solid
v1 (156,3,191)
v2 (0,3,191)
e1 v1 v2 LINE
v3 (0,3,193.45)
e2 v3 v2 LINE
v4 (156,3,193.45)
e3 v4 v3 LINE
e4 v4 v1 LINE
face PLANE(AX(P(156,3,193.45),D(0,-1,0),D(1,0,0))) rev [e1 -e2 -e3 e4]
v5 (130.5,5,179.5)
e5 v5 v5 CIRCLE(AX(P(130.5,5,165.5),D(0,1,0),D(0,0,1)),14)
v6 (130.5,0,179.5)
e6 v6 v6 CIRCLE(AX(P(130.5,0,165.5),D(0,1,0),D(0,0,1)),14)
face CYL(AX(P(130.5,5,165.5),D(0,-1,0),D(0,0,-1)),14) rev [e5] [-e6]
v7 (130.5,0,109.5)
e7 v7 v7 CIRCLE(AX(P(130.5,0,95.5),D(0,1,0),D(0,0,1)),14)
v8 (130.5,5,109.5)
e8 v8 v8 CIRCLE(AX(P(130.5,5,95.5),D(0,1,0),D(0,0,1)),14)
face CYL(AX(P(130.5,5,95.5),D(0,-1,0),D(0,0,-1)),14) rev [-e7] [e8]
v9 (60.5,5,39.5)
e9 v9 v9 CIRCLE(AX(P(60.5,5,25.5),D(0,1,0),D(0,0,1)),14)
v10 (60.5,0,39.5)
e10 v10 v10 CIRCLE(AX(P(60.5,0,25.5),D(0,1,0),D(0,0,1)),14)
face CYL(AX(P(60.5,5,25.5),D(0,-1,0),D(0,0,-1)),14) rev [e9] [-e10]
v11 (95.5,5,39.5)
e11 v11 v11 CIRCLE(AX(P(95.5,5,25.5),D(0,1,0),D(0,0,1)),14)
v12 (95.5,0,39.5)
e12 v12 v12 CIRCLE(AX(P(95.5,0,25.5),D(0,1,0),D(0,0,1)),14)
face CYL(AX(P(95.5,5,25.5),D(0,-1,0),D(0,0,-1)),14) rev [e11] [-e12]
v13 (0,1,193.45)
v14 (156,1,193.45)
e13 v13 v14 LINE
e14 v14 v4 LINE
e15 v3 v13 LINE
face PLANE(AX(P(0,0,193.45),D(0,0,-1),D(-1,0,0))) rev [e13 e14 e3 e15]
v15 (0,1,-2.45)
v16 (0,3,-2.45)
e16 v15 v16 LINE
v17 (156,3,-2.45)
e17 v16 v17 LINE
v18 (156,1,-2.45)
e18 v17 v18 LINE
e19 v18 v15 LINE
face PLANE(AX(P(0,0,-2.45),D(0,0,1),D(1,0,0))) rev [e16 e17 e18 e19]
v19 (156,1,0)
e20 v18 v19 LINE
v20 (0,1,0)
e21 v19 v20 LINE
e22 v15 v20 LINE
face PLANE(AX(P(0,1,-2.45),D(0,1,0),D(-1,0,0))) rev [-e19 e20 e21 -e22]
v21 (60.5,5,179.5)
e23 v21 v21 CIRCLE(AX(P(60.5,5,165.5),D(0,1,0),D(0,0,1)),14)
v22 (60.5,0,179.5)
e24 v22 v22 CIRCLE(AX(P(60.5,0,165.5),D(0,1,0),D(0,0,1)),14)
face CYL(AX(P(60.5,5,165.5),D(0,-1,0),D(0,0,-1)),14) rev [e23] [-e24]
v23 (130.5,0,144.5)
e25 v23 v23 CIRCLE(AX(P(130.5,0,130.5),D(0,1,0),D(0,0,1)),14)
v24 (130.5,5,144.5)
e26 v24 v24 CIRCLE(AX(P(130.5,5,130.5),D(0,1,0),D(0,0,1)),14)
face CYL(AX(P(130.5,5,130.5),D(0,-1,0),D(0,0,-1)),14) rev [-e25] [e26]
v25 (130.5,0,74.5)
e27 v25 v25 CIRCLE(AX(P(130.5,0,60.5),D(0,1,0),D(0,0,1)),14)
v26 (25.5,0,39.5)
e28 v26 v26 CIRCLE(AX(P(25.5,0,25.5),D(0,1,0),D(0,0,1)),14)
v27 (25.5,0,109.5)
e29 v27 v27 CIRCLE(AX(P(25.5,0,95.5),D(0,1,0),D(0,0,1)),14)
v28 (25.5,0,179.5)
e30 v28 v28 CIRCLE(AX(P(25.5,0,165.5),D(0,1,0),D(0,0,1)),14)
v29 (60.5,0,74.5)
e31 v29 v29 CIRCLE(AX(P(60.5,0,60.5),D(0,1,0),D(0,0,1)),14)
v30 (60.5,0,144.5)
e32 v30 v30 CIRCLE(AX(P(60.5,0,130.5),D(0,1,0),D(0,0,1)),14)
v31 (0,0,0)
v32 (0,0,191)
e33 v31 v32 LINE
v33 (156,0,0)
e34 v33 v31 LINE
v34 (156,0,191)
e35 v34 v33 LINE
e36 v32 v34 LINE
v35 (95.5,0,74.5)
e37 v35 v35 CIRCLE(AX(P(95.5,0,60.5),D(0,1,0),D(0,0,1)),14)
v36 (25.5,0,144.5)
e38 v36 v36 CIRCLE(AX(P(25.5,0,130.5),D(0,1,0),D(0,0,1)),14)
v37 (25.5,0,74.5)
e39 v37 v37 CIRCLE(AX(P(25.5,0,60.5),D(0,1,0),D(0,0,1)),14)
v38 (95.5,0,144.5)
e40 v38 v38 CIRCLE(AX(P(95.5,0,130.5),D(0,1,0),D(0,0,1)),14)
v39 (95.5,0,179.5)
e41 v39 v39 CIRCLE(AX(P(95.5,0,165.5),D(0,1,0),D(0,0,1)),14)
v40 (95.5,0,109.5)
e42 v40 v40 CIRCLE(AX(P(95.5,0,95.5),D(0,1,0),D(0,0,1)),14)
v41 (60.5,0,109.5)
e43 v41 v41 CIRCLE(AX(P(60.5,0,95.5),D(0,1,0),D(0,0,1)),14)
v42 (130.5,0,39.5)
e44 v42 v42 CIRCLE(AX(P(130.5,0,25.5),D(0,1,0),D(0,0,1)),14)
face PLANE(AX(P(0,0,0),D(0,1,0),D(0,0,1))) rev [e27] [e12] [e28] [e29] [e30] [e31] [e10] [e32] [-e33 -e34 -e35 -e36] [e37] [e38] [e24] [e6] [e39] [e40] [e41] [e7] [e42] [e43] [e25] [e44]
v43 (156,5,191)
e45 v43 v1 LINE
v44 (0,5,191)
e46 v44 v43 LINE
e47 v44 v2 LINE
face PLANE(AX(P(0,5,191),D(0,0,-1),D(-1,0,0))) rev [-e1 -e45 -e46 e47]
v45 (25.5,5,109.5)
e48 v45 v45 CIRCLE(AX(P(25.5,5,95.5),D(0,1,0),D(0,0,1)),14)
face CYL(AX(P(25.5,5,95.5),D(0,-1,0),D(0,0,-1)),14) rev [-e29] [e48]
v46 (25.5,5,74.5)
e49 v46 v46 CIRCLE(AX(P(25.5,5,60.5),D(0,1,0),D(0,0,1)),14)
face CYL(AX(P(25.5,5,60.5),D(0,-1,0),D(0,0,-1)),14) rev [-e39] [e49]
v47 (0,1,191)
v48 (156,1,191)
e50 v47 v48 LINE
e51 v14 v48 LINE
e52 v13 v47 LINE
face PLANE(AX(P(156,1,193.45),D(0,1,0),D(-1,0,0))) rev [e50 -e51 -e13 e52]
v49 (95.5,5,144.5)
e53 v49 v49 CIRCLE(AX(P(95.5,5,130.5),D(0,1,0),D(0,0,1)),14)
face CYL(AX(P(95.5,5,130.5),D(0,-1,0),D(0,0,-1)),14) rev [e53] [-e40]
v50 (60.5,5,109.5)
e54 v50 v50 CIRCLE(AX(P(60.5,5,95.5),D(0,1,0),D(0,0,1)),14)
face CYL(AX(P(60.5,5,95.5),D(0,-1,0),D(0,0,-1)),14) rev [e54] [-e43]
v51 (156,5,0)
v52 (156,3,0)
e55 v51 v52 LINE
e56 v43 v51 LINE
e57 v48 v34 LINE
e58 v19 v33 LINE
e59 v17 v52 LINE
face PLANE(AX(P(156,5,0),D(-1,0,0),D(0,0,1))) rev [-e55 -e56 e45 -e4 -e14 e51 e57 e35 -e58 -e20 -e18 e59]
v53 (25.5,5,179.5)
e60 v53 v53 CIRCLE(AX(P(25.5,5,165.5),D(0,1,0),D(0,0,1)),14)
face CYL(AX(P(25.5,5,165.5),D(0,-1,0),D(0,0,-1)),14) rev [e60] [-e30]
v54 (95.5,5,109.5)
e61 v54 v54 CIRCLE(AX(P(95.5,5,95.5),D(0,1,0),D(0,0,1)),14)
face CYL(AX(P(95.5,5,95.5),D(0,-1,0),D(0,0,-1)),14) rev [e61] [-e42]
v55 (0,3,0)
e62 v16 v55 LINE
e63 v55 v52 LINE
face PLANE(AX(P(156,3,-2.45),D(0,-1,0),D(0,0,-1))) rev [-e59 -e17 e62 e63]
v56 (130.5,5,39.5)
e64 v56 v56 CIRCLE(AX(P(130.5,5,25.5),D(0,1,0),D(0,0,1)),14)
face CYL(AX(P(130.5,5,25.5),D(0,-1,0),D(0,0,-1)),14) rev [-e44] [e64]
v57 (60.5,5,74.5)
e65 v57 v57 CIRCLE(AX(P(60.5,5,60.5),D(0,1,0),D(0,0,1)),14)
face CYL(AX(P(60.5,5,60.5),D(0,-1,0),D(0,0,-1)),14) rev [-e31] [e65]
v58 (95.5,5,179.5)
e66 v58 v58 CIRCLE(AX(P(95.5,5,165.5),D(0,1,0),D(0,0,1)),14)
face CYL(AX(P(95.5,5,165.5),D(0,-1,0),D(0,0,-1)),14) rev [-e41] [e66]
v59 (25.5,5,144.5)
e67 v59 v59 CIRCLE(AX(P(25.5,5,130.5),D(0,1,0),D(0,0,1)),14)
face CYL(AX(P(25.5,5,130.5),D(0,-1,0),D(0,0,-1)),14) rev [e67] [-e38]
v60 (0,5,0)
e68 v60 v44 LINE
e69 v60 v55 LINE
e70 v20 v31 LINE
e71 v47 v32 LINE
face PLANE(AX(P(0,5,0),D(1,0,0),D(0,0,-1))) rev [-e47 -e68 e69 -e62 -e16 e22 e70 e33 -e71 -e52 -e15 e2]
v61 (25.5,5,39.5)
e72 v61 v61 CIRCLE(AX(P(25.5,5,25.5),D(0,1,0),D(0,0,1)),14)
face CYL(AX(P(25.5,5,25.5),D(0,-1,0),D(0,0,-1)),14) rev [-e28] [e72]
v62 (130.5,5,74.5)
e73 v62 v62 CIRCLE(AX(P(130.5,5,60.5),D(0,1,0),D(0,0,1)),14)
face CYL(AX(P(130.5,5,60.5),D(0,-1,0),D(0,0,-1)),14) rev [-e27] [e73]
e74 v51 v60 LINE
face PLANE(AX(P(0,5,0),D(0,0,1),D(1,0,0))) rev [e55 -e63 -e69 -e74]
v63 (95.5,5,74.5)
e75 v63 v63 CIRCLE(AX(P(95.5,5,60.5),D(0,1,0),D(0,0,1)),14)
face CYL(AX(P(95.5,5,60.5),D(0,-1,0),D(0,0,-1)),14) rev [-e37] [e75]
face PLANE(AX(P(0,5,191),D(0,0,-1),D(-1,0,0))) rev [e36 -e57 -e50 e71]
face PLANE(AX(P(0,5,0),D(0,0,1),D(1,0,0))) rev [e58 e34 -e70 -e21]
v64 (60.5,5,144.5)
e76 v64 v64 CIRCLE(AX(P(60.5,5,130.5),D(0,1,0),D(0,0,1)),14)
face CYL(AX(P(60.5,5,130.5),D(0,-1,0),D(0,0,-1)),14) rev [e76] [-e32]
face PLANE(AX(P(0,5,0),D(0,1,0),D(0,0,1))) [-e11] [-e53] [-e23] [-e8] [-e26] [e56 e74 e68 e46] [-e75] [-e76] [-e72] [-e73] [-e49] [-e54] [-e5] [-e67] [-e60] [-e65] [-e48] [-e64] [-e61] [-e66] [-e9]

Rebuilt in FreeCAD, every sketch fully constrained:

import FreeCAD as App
import Part
import Sketcher

V = App.Vector
Q = App.Units.Quantity


def add_polygon(sketch, points):
    """Adds a closed chain of lines whose ends are joined by coincident constraints."""
    first, n = sketch.GeometryCount, len(points)
    for a, b in zip(points, points[1:] + points[:1]):
        sketch.addGeometry(Part.LineSegment(App.Vector(*a, 0), App.Vector(*b, 0)), False)
    for i in range(n):
        sketch.addConstraint(Sketcher.Constraint("Coincident", first + i, 2, first + (i + 1) % n, 1))

doc = App.newDocument("Part")
body = doc.addObject("PartDesign::Body", "Body")

# Sketch on XZ plane
sketch1 = doc.addObject("Sketcher::SketchObject", "Sketch")
body.addObject(sketch1)
sketch1.AttachmentSupport = (doc.XZ_Plane, [""])
sketch1.MapMode = "FlatFace"
add_polygon(sketch1, [(0, 0), (0, 191), (156, 191), (156, 0)])  # lines 0-3
sketch1.addGeometry(Part.Circle(V(26, 166, 0), V(0, 0, 1), 14), False)  # 4
sketch1.addGeometry(Part.Circle(V(60, 166, 0), V(0, 0, 1), 14), False)  # 5
sketch1.addGeometry(Part.Circle(V(26, 130, 0), V(0, 0, 1), 14), False)  # 6
sketch1.addGeometry(Part.Circle(V(60, 130, 0), V(0, 0, 1), 14), False)  # 7
sketch1.addGeometry(Part.Circle(V(96, 166, 0), V(0, 0, 1), 14), False)  # 8
sketch1.addGeometry(Part.Circle(V(130, 166, 0), V(0, 0, 1), 14), False)  # 9
sketch1.addGeometry(Part.Circle(V(96, 130, 0), V(0, 0, 1), 14), False)  # 10
sketch1.addGeometry(Part.Circle(V(130, 130, 0), V(0, 0, 1), 14), False)  # 11
sketch1.addGeometry(Part.Circle(V(26, 96, 0), V(0, 0, 1), 14), False)  # 12
sketch1.addGeometry(Part.Circle(V(26, 60, 0), V(0, 0, 1), 14), False)  # 13
sketch1.addGeometry(Part.Circle(V(60, 96, 0), V(0, 0, 1), 14), False)  # 14
sketch1.addGeometry(Part.Circle(V(60, 60, 0), V(0, 0, 1), 14), False)  # 15
sketch1.addGeometry(Part.Circle(V(26, 26, 0), V(0, 0, 1), 14), False)  # 16
sketch1.addGeometry(Part.Circle(V(60, 26, 0), V(0, 0, 1), 14), False)  # 17
sketch1.addGeometry(Part.Circle(V(96, 96, 0), V(0, 0, 1), 14), False)  # 18
sketch1.addGeometry(Part.Circle(V(96, 60, 0), V(0, 0, 1), 14), False)  # 19
sketch1.addGeometry(Part.Circle(V(130, 96, 0), V(0, 0, 1), 14), False)  # 20
sketch1.addGeometry(Part.Circle(V(130, 60, 0), V(0, 0, 1), 14), False)  # 21
sketch1.addGeometry(Part.Circle(V(96, 26, 0), V(0, 0, 1), 14), False)  # 22
sketch1.addGeometry(Part.Circle(V(130, 26, 0), V(0, 0, 1), 14), False)  # 23
sketch1.addConstraint([
    Sketcher.Constraint("Vertical", 0),
    Sketcher.Constraint("Horizontal", 1),
    Sketcher.Constraint("Vertical", 2),
    Sketcher.Constraint("Horizontal", 3),
    Sketcher.Constraint("Coincident", 3, 2, -1, 1),
    Sketcher.Constraint("Equal", 4, 5),
    Sketcher.Constraint("Equal", 5, 6),
    Sketcher.Constraint("Equal", 6, 7),
    Sketcher.Constraint("Equal", 7, 8),
    Sketcher.Constraint("Equal", 8, 9),
    Sketcher.Constraint("Equal", 9, 10),
    Sketcher.Constraint("Equal", 10, 11),
    Sketcher.Constraint("Equal", 11, 12),
    Sketcher.Constraint("Equal", 12, 13),
    Sketcher.Constraint("Equal", 13, 14),
    Sketcher.Constraint("Equal", 14, 15),
    Sketcher.Constraint("Equal", 15, 16),
    Sketcher.Constraint("Equal", 16, 17),
    Sketcher.Constraint("Equal", 17, 18),
    Sketcher.Constraint("Equal", 18, 19),
    Sketcher.Constraint("Equal", 19, 20),
    Sketcher.Constraint("Equal", 20, 21),
    Sketcher.Constraint("Equal", 21, 22),
    Sketcher.Constraint("Equal", 22, 23),
    Sketcher.Constraint("Horizontal", 4, 3, 5, 3),
    Sketcher.Constraint("Horizontal", 6, 3, 7, 3),
    Sketcher.Constraint("Horizontal", 5, 3, 8, 3),
    Sketcher.Constraint("Horizontal", 8, 3, 9, 3),
    Sketcher.Constraint("Horizontal", 7, 3, 10, 3),
    Sketcher.Constraint("Horizontal", 10, 3, 11, 3),
    Sketcher.Constraint("Horizontal", 12, 3, 14, 3),
    Sketcher.Constraint("Horizontal", 13, 3, 15, 3),
    Sketcher.Constraint("Horizontal", 16, 3, 17, 3),
    Sketcher.Constraint("Horizontal", 14, 3, 18, 3),
    Sketcher.Constraint("Horizontal", 15, 3, 19, 3),
    Sketcher.Constraint("Horizontal", 18, 3, 20, 3),
    Sketcher.Constraint("Horizontal", 19, 3, 21, 3),
    Sketcher.Constraint("Horizontal", 17, 3, 22, 3),
    Sketcher.Constraint("Horizontal", 22, 3, 23, 3),
    Sketcher.Constraint("Vertical", 4, 3, 6, 3),
    Sketcher.Constraint("Vertical", 5, 3, 7, 3),
    Sketcher.Constraint("Vertical", 8, 3, 10, 3),
    Sketcher.Constraint("Vertical", 9, 3, 11, 3),
    Sketcher.Constraint("Vertical", 6, 3, 12, 3),
    Sketcher.Constraint("Vertical", 12, 3, 13, 3),
    Sketcher.Constraint("Vertical", 7, 3, 14, 3),
    Sketcher.Constraint("Vertical", 14, 3, 15, 3),
    Sketcher.Constraint("Vertical", 13, 3, 16, 3),
    Sketcher.Constraint("Vertical", 15, 3, 17, 3),
    Sketcher.Constraint("Vertical", 10, 3, 18, 3),
    Sketcher.Constraint("Vertical", 18, 3, 19, 3),
    Sketcher.Constraint("Vertical", 11, 3, 20, 3),
    Sketcher.Constraint("Vertical", 20, 3, 21, 3),
    Sketcher.Constraint("Vertical", 19, 3, 22, 3),
    Sketcher.Constraint("Vertical", 21, 3, 23, 3),
    Sketcher.Constraint("Diameter", 4, Q("28 mm")),
    Sketcher.Constraint("DistanceX", 1, 1, 1, 2, Q("156 mm")),
    Sketcher.Constraint("DistanceY", 0, 1, 0, 2, Q("191 mm")),
    Sketcher.Constraint("DistanceX", 4, 3, 5, 3, Q("35 mm")),
    Sketcher.Constraint("DistanceY", 6, 3, 4, 3, Q("35 mm")),
    Sketcher.Constraint("DistanceX", 5, 3, 8, 3, Q("35 mm")),
    Sketcher.Constraint("DistanceX", 8, 3, 9, 3, Q("35 mm")),
    Sketcher.Constraint("DistanceY", 12, 3, 6, 3, Q("35 mm")),
    Sketcher.Constraint("DistanceY", 13, 3, 12, 3, Q("35 mm")),
    Sketcher.Constraint("DistanceY", 16, 3, 13, 3, Q("35 mm")),
    Sketcher.Constraint("DistanceX", -1, 1, 4, 3, Q("25.5 mm")),
    Sketcher.Constraint("DistanceY", -1, 1, 4, 3, Q("165.5 mm")),
])
pad1 = doc.addObject("PartDesign::Pad", "Pad")
body.addObject(pad1)
pad1.Profile = sketch1
pad1.Length = 5
pad1.Reversed = True

# Sketch on XY plane
sketch2 = doc.addObject("Sketcher::SketchObject", "Sketch001")
body.addObject(sketch2)
sketch2.AttachmentSupport = (doc.XY_Plane, [""])
sketch2.MapMode = "FlatFace"
sketch2.AttachmentOffset = App.Placement(V(0, 0, 191), App.Rotation())
add_polygon(sketch2, [(0, 3), (0, 1), (156, 1), (156, 3)])  # lines 0-3
sketch2.addConstraint([
    Sketcher.Constraint("Vertical", 0),
    Sketcher.Constraint("Horizontal", 1),
    Sketcher.Constraint("Vertical", 2),
    Sketcher.Constraint("Horizontal", 3),
    Sketcher.Constraint("PointOnObject", 0, 2, -2),
    Sketcher.Constraint("DistanceX", 1, 1, 1, 2, Q("156 mm")),
    Sketcher.Constraint("DistanceY", 0, 2, 0, 1, Q("2 mm")),
    Sketcher.Constraint("DistanceY", -1, 1, 0, 2, Q("1 mm")),
])
pad2 = doc.addObject("PartDesign::Pad", "Pad001")
body.addObject(pad2)
pad2.Profile = sketch2
pad2.Length = 2.45

# Sketch on XY plane
sketch3 = doc.addObject("Sketcher::SketchObject", "Sketch002")
body.addObject(sketch3)
sketch3.AttachmentSupport = (doc.XY_Plane, [""])
sketch3.MapMode = "FlatFace"
add_polygon(sketch3, [(156, 3), (156, 1), (0, 1), (0, 3)])  # lines 0-3
sketch3.addConstraint([
    Sketcher.Constraint("Vertical", 0),
    Sketcher.Constraint("Horizontal", 1),
    Sketcher.Constraint("Vertical", 2),
    Sketcher.Constraint("Horizontal", 3),
    Sketcher.Constraint("PointOnObject", 1, 2, -2),
    Sketcher.Constraint("DistanceX", 1, 2, 1, 1, Q("156 mm")),
    Sketcher.Constraint("DistanceY", 0, 2, 0, 1, Q("2 mm")),
    Sketcher.Constraint("DistanceY", -1, 1, 0, 2, Q("1 mm")),
])
pad3 = doc.addObject("PartDesign::Pad", "Pad002")
body.addObject(pad3)
pad3.Profile = sketch3
pad3.Length = 2.45
pad3.Reversed = True

doc.recompute()
